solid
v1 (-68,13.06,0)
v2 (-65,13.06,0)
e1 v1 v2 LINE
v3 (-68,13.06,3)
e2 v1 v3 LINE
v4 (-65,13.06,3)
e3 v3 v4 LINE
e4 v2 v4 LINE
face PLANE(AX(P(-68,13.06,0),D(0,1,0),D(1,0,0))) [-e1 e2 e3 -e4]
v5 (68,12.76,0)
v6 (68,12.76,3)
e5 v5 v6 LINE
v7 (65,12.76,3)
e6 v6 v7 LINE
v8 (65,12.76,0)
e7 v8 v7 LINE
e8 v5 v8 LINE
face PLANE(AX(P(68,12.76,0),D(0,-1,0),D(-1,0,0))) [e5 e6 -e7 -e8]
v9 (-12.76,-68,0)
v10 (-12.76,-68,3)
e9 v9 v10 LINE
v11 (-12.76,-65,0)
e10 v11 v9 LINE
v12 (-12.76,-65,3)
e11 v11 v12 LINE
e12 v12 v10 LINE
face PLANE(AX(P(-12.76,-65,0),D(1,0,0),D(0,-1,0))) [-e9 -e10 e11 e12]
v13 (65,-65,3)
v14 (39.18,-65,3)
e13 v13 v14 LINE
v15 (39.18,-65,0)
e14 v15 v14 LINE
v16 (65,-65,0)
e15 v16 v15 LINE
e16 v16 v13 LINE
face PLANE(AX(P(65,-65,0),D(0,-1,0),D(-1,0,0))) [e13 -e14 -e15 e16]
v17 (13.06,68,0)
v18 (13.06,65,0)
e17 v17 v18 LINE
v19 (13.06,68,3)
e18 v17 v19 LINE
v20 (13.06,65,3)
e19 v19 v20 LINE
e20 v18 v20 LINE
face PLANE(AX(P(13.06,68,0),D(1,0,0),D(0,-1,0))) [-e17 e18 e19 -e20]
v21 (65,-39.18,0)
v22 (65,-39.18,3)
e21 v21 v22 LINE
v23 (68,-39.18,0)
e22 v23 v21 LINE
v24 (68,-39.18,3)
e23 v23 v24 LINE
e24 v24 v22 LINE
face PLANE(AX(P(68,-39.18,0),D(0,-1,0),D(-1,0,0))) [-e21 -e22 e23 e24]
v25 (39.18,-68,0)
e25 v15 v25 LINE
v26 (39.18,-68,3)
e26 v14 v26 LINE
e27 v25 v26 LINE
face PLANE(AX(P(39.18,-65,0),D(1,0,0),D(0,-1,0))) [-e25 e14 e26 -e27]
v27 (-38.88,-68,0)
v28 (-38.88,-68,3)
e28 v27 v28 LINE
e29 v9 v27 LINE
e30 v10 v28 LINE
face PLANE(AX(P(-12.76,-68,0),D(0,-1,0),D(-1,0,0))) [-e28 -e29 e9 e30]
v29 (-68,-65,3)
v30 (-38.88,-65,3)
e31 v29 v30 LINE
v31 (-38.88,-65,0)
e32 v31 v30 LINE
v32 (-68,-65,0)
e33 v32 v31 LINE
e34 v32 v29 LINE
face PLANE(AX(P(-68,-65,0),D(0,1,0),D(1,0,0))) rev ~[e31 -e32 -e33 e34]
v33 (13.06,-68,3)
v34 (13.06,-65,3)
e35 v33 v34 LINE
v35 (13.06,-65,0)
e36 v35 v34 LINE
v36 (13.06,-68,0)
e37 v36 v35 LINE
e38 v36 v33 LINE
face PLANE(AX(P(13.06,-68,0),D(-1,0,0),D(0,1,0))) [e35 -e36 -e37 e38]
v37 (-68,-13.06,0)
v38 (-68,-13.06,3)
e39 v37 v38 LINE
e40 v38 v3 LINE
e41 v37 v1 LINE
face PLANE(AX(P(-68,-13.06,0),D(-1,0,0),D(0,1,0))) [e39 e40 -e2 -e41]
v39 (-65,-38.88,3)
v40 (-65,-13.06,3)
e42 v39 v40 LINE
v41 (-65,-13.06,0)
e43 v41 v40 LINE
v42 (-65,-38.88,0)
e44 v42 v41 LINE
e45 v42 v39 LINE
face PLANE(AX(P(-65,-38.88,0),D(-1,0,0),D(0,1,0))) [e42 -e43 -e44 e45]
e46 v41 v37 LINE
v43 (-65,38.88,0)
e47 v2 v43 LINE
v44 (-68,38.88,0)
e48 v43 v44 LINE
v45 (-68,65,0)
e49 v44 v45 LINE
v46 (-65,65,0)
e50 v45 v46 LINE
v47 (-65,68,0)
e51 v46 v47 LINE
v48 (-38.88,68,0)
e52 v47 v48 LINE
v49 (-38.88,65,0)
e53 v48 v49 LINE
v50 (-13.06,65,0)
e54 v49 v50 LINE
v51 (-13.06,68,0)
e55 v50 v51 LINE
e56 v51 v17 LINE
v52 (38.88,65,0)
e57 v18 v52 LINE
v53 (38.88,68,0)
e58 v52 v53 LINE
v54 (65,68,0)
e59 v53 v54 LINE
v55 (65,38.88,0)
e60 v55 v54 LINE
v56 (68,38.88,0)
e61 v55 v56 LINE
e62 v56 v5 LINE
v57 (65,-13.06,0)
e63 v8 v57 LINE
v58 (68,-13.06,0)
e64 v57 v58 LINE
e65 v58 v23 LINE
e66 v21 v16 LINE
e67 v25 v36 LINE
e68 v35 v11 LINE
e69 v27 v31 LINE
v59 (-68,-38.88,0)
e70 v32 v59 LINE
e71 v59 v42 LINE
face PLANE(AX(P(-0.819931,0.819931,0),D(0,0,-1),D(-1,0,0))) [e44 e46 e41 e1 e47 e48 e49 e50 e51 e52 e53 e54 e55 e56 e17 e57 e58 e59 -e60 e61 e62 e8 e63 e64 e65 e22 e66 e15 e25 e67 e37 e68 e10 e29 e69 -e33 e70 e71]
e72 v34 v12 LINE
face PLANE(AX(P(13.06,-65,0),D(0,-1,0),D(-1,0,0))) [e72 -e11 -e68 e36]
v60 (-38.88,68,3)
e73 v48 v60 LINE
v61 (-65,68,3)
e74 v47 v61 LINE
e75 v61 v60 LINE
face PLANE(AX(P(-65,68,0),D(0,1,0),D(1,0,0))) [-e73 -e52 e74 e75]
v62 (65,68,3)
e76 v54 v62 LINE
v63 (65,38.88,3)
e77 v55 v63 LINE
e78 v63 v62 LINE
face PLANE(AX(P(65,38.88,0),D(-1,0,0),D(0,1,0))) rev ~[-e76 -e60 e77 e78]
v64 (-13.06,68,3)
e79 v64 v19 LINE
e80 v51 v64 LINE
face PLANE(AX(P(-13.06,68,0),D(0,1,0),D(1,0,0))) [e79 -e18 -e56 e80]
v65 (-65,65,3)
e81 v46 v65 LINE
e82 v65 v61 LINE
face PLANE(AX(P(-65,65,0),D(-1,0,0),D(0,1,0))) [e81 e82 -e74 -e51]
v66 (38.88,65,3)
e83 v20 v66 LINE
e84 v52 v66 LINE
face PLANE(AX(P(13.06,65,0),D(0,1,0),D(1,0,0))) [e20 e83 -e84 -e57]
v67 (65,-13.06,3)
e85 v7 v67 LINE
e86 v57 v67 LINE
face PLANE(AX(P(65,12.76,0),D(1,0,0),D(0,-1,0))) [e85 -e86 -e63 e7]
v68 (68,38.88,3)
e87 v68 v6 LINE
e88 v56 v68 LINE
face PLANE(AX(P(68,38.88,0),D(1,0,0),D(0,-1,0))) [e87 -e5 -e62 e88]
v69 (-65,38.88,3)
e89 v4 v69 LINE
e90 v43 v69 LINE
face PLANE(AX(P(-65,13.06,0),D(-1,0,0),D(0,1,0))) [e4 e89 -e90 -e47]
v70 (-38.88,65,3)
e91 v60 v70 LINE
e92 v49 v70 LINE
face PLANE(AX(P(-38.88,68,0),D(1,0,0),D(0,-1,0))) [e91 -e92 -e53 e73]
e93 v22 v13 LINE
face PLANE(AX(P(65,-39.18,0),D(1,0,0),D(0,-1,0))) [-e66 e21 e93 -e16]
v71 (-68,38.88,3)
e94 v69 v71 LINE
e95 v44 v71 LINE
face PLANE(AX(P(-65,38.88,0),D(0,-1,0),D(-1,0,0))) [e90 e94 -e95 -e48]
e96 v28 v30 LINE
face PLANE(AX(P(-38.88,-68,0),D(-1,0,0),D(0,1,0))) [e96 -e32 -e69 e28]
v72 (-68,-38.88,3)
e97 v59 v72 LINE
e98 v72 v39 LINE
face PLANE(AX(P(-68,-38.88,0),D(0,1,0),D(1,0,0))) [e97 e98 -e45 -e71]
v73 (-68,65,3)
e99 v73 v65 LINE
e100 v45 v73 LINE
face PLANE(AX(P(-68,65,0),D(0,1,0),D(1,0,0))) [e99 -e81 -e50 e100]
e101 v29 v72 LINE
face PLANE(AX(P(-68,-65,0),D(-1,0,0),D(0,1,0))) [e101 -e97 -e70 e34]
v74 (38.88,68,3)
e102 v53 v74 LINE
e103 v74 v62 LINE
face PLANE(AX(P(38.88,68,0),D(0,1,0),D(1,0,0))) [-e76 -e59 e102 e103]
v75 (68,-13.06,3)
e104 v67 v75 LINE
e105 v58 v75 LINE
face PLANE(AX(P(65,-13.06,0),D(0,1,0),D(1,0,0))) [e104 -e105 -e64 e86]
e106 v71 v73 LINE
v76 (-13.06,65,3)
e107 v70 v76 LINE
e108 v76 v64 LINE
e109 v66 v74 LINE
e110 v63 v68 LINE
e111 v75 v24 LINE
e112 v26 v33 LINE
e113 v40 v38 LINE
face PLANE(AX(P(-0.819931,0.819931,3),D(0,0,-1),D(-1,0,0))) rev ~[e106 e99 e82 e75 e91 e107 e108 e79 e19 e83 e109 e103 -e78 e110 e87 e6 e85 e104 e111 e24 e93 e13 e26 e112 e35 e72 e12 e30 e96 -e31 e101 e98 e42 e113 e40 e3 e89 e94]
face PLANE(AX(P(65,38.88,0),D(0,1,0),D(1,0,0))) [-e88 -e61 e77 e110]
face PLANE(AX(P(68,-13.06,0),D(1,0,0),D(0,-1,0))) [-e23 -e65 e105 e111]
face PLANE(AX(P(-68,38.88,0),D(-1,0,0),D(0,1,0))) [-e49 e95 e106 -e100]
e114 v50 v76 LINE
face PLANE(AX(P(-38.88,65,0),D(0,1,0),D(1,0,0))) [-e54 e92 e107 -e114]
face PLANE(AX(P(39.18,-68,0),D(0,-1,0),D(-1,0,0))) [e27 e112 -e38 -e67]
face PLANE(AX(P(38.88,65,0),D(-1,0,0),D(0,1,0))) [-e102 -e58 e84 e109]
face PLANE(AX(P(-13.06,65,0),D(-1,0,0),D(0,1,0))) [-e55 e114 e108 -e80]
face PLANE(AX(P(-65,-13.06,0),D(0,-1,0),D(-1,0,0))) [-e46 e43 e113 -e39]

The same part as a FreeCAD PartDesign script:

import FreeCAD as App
import Part
import Sketcher
Q = App.Units.Quantity


def add_polygon(sketch, points):
    """Adds a closed chain of lines whose ends are joined by coincident constraints."""
    first, n = sketch.GeometryCount, len(points)
    for a, b in zip(points, points[1:] + points[:1]):
        sketch.addGeometry(Part.LineSegment(App.Vector(*a, 0), App.Vector(*b, 0)), False)
    for i in range(n):
        sketch.addConstraint(Sketcher.Constraint("Coincident", first + i, 2, first + (i + 1) % n, 1))

doc = App.newDocument("Part")
body = doc.addObject("PartDesign::Body", "Body")

sketch1 = doc.addObject("Sketcher::SketchObject", "Sketch")
body.addObject(sketch1)
sketch1.AttachmentSupport = (doc.XY_Plane, [""])
sketch1.MapMode = "FlatFace"
add_polygon(sketch1, [(68, 38.88), (65, 38.88), (65, 68), (38.88, 68), (38.88, 65), (13.06, 65), (13.06, 68), (-13.06, 68), (-13.06, 65), (-38.88, 65), (-38.88, 68), (-65, 68), (-65, 65), (-68, 65), (-68, 38.88), (-65, 38.88), (-65, 13.06), (-68, 13.06), (-68, -13.06), (-65, -13.06), (-65, -38.88), (-68, -38.88), (-68, -65), (-38.88, -65), (-38.88, -68), (-12.76, -68), (-12.76, -65), (13.06, -65), (13.06, -68), (39.18, -68), (39.18, -65), (65, -65), (65, -39.18), (68, -39.18), (68, -13.06), (65, -13.06), (65, 12.76), (68, 12.76)])
sketch1.addConstraint([
    Sketcher.Constraint("Horizontal", 0),
    Sketcher.Constraint("Vertical", 1),
    Sketcher.Constraint("Horizontal", 2),
    Sketcher.Constraint("Vertical", 3),
    Sketcher.Constraint("Horizontal", 4),
    Sketcher.Constraint("Vertical", 5),
    Sketcher.Constraint("Horizontal", 6),
    Sketcher.Constraint("Vertical", 7),
    Sketcher.Constraint("Horizontal", 8),
    Sketcher.Constraint("Vertical", 9),
    Sketcher.Constraint("Horizontal", 10),
    Sketcher.Constraint("Vertical", 11),
    Sketcher.Constraint("Horizontal", 12),
    Sketcher.Constraint("Vertical", 13),
    Sketcher.Constraint("Horizontal", 14),
    Sketcher.Constraint("Vertical", 15),
    Sketcher.Constraint("Horizontal", 16),
    Sketcher.Constraint("Vertical", 17),
    Sketcher.Constraint("Horizontal", 18),
    Sketcher.Constraint("Vertical", 19),
    Sketcher.Constraint("Horizontal", 20),
    Sketcher.Constraint("Vertical", 21),
    Sketcher.Constraint("Horizontal", 22),
    Sketcher.Constraint("Vertical", 23),
    Sketcher.Constraint("Horizontal", 24),
    Sketcher.Constraint("Vertical", 25),
    Sketcher.Constraint("Horizontal", 26),
    Sketcher.Constraint("Vertical", 27),
    Sketcher.Constraint("Horizontal", 28),
    Sketcher.Constraint("Vertical", 29),
    Sketcher.Constraint("Horizontal", 30),
    Sketcher.Constraint("Vertical", 31),
    Sketcher.Constraint("Horizontal", 32),
    Sketcher.Constraint("Vertical", 33),
    Sketcher.Constraint("Horizontal", 34),
    Sketcher.Constraint("Vertical", 35),
    Sketcher.Constraint("Horizontal", 36),
    Sketcher.Constraint("Vertical", 37),
    Sketcher.Constraint("Symmetric", 0, 2, 19, 2, -1, 1),
    Sketcher.Constraint("Symmetric", 3, 2, 22, 2, -1, 1),
    Sketcher.Constraint("Symmetric", 7, 2, 26, 2, -1, 1),
    Sketcher.Constraint("Symmetric", 11, 2, 30, 2, -1, 1),
    Sketcher.Constraint("Symmetric", 16, 2, 33, 2, -1, 1),
    Sketcher.Constraint("Symmetric", 4, 2, 7, 2, -2),
    Sketcher.Constraint("Symmetric", 2, 2, 9, 2, -2),
    Sketcher.Constraint("Symmetric", 0, 2, 14, 2, -2),
    Sketcher.Constraint("Symmetric", 18, 2, 34, 2, -2),
    Sketcher.Constraint("Symmetric", 12, 2, 21, 2, -1),
    Sketcher.Constraint("Horizontal", 2, 2, 5, 2),
    Sketcher.Constraint("Horizontal", 24, 2, 27, 2),
    Sketcher.Constraint("Vertical", 11, 2, 14, 2),
    Sketcher.Constraint("Vertical", 13, 2, 16, 2),
    Sketcher.Constraint("Vertical", 33, 2, 36, 2),
    Sketcher.Constraint("Equal", 2, 6),
    Sketcher.Constraint("Equal", 10, 24),
    Sketcher.Constraint("Equal", 24, 28),
    Sketcher.Constraint("Equal", 22, 1),
    Sketcher.Constraint("Equal", 36, 3),
    Sketcher.Constraint("Equal", 30, 15),
    Sketcher.Constraint("Equal", 13, 17),
    Sketcher.Constraint("Equal", 11, 23),
    Sketcher.Constraint("Equal", 19, 31),
    Sketcher.Constraint("Equal", 31, 35),
    Sketcher.Constraint("DistanceX", 0, 2, 0, 1, Q("3 mm")),
    Sketcher.Constraint("DistanceX", -1, 1, 0, 2, Q("65 mm")),
    Sketcher.Constraint("DistanceX", 2, 2, 2, 1, Q("26.12 mm")),
])
pad1 = doc.addObject("PartDesign::Pad", "Pad")
body.addObject(pad1)
pad1.Profile = sketch1
pad1.Length = 3

doc.recompute()
